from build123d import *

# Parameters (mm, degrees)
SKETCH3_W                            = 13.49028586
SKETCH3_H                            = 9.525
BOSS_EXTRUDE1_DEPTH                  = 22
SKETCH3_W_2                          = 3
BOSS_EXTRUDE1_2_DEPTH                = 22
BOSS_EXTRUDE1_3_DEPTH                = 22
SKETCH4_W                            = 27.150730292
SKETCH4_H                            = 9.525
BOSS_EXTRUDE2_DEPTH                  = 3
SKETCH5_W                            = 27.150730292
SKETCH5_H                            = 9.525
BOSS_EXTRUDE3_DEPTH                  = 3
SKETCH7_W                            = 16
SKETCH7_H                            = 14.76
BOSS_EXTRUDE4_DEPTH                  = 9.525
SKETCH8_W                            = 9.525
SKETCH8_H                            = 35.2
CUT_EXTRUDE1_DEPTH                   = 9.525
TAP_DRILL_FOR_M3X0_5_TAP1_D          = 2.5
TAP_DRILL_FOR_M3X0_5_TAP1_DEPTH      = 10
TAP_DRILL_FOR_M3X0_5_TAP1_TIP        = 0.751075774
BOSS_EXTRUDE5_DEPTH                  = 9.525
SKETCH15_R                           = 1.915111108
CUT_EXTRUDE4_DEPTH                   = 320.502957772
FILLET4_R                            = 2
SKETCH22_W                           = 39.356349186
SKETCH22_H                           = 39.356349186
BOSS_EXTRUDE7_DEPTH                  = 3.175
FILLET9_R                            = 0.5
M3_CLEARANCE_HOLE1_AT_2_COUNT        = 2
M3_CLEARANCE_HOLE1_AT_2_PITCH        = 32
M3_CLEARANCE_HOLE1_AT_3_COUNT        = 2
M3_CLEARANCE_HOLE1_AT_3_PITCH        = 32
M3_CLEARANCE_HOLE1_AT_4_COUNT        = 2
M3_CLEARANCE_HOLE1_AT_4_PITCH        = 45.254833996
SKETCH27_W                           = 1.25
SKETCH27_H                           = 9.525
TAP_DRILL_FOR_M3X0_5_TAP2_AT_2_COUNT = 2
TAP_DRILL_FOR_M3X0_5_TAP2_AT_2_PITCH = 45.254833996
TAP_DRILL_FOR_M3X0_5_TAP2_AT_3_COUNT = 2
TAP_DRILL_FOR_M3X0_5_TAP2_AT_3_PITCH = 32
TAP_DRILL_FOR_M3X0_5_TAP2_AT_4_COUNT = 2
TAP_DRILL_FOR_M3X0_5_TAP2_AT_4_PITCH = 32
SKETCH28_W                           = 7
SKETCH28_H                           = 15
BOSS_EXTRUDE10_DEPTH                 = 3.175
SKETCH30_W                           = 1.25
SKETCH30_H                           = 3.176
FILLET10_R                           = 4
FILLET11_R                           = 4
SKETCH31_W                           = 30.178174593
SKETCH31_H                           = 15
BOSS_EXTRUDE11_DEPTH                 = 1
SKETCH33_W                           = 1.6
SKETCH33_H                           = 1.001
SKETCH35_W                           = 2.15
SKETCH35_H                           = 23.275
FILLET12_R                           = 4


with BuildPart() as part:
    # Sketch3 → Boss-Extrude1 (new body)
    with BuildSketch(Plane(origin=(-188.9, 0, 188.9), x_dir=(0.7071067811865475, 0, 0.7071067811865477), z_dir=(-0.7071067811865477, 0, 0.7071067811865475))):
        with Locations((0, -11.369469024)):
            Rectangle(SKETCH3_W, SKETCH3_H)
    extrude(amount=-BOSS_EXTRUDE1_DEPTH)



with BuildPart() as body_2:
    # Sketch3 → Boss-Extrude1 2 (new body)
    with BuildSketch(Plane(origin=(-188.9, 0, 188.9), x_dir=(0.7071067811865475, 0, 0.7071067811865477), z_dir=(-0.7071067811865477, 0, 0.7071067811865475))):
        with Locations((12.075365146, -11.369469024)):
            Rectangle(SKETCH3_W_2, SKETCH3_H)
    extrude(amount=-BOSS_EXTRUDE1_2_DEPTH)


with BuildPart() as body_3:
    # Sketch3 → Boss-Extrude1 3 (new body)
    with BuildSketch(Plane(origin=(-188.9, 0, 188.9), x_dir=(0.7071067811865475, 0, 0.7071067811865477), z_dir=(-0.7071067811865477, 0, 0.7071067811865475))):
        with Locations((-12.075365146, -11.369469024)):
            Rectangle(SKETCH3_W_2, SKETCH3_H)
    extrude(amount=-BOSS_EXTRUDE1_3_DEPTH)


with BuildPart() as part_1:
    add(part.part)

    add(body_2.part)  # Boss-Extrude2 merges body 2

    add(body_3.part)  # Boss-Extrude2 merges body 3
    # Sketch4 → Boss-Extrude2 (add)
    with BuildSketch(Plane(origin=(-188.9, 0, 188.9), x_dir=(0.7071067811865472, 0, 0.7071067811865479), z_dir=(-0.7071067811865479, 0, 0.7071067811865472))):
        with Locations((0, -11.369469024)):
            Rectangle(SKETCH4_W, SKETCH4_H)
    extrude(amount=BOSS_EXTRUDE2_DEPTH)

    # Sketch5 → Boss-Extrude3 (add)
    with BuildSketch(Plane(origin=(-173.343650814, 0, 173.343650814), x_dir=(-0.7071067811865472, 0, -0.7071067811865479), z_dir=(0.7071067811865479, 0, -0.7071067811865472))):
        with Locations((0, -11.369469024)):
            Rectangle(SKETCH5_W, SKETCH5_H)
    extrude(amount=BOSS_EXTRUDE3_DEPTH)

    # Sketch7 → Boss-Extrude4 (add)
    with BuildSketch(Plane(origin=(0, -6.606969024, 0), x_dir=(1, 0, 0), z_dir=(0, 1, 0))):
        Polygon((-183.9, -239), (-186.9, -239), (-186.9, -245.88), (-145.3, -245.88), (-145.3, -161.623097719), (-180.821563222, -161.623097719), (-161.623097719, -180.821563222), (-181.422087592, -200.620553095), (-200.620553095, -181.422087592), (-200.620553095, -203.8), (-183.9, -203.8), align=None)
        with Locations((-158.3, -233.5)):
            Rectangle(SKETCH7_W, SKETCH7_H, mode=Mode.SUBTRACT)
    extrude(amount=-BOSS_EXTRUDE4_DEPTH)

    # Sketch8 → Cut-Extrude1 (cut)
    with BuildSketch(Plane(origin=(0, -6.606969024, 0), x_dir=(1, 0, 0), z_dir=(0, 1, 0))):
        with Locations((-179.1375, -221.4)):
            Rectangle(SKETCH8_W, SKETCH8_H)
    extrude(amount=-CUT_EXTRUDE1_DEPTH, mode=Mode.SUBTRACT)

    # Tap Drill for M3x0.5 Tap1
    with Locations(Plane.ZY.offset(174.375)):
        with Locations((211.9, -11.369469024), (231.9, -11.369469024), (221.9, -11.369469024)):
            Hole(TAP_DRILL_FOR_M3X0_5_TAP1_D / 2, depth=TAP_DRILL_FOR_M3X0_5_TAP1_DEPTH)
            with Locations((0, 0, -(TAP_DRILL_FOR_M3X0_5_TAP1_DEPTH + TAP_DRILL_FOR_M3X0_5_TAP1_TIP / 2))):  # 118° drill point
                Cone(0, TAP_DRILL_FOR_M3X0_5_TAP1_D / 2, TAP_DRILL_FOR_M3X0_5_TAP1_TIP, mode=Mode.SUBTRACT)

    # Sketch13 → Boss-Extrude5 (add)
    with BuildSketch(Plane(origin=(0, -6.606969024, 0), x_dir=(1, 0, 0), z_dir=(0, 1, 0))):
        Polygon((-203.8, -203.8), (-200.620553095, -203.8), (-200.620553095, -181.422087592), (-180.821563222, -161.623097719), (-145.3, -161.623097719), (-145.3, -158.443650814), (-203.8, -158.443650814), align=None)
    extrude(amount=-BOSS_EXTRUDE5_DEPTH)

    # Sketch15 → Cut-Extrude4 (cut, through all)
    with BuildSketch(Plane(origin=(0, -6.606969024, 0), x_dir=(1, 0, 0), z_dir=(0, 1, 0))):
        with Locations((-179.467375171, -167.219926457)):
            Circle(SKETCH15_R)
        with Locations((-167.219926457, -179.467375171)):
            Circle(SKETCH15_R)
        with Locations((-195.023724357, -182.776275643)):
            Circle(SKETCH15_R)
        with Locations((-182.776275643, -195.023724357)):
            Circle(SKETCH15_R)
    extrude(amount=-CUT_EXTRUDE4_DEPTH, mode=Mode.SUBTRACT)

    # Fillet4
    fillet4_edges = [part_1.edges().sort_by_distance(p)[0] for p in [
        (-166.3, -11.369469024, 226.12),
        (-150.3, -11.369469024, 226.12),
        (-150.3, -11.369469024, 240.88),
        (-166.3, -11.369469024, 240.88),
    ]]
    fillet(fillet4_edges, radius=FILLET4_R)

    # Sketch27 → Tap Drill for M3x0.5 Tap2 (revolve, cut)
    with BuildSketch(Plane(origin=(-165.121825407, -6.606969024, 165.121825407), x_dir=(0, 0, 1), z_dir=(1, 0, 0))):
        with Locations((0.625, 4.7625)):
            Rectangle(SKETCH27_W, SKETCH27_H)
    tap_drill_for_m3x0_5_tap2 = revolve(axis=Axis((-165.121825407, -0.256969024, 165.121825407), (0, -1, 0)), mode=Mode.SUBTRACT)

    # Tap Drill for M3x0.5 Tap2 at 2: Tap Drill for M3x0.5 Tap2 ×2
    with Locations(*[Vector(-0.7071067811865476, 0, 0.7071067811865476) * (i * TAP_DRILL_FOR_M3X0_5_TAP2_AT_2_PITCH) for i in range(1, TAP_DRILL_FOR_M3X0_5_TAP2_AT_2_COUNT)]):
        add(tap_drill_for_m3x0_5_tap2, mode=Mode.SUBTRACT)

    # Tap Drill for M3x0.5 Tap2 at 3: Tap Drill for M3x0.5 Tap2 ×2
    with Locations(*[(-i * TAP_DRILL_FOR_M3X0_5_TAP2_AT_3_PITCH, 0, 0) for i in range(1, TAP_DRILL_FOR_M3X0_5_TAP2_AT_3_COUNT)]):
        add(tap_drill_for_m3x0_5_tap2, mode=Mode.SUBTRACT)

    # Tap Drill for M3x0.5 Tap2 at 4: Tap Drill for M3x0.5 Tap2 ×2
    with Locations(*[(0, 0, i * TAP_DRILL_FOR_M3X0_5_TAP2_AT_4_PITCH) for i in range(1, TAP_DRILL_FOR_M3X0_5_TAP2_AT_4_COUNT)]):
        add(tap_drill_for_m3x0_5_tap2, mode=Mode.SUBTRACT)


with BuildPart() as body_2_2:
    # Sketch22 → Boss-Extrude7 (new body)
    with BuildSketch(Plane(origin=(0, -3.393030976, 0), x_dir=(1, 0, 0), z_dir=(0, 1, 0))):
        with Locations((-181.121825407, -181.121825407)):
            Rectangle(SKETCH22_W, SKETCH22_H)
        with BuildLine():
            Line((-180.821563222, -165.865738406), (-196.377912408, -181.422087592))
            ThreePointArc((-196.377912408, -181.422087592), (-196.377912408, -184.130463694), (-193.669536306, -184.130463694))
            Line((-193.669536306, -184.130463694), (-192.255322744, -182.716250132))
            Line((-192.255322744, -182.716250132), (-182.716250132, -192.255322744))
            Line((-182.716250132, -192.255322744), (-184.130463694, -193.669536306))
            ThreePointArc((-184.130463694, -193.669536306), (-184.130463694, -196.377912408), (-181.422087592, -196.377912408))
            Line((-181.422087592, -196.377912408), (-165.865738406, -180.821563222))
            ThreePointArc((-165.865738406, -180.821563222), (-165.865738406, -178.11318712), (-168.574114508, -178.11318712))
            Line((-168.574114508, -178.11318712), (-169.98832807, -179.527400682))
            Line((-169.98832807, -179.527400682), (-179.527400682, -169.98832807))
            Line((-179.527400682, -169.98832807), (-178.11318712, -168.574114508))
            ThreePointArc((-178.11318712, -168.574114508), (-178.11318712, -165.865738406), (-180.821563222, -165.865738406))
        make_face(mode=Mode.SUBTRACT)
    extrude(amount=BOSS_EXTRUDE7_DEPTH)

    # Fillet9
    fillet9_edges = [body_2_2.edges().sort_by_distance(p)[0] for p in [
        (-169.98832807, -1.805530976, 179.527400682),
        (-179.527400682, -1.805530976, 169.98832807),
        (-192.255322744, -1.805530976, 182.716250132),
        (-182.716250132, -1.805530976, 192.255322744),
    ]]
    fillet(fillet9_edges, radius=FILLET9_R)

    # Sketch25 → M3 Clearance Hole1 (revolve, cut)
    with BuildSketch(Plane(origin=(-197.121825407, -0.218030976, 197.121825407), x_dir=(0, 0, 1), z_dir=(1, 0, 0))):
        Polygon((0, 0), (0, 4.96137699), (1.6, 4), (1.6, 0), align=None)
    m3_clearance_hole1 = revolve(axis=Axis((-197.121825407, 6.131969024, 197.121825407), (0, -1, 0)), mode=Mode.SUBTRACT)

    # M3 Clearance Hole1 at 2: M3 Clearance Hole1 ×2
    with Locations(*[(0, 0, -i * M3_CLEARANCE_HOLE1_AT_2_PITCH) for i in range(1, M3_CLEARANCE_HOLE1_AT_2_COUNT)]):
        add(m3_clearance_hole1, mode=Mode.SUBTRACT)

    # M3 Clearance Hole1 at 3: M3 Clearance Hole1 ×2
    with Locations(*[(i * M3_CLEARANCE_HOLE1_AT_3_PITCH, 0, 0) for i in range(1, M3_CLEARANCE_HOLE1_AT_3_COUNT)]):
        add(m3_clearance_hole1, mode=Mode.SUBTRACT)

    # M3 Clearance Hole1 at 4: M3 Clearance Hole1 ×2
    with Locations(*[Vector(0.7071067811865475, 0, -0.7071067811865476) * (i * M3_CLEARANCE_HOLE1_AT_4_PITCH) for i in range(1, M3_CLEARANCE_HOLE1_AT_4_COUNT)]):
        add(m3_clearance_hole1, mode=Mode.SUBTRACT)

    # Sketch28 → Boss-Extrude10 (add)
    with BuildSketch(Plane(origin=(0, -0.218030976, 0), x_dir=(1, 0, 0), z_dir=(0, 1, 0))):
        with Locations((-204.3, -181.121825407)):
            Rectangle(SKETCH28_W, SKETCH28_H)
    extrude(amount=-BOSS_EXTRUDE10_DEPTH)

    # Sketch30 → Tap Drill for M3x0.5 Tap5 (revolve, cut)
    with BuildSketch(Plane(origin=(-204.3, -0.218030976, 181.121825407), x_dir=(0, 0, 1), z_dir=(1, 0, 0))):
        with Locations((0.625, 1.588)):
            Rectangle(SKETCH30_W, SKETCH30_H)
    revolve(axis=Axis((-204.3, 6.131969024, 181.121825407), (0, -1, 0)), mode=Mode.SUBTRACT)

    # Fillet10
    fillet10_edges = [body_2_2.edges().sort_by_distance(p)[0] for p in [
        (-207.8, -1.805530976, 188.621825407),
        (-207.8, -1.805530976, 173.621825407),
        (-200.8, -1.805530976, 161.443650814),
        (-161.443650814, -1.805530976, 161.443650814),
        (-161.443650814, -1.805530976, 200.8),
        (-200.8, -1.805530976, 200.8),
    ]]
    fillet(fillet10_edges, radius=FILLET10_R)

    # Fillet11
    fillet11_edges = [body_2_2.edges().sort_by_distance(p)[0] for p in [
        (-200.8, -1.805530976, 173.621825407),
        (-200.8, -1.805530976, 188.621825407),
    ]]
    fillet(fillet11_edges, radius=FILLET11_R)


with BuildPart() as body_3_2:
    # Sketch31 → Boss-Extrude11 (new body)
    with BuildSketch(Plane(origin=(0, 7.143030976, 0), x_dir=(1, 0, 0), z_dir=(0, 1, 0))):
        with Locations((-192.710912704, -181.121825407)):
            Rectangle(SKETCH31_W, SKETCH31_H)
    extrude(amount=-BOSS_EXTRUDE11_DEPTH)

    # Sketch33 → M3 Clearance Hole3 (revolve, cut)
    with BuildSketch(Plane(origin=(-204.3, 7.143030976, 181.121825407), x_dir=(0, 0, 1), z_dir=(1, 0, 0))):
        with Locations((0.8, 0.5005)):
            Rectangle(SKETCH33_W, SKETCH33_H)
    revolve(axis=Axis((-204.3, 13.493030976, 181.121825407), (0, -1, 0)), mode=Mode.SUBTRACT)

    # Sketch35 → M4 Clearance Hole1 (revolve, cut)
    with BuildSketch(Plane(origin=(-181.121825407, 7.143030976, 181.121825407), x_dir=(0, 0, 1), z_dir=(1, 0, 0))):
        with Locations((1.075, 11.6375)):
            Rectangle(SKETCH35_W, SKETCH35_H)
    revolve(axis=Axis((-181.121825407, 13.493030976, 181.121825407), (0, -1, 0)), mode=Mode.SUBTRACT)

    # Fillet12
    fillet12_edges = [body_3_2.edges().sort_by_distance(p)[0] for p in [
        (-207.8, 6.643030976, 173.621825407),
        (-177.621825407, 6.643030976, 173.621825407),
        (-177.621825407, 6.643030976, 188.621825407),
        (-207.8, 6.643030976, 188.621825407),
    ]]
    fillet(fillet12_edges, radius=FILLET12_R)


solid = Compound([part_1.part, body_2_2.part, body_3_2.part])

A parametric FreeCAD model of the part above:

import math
import FreeCAD as App
import Part
import Sketcher

V = App.Vector
Q = App.Units.Quantity


def edges_at(feature, points):
    """Names of the edges that pass closest to the given points."""
    edges = feature.Shape.Edges
    near = lambda p: min(range(len(edges)), key=lambda i: edges[i].distToShape(Part.Vertex(*p))[0])
    return sorted({f"Edge{near(p) + 1}" for p in points})


def add_polygon(sketch, points):
    """Adds a closed chain of lines whose ends are joined by coincident constraints."""
    first, n = sketch.GeometryCount, len(points)
    for a, b in zip(points, points[1:] + points[:1]):
        sketch.addGeometry(Part.LineSegment(App.Vector(*a, 0), App.Vector(*b, 0)), False)
    for i in range(n):
        sketch.addConstraint(Sketcher.Constraint("Coincident", first + i, 2, first + (i + 1) % n, 1))

doc = App.newDocument("Part")
body = doc.addObject("PartDesign::Body", "Body")

sketch1 = body.newObject("Sketcher::SketchObject", "Sketch")
sketch1.Placement = App.Placement(V(-188.9, 0, 188.9), App.Rotation(V(0.707106781, 0, 0.707106781), V(0, 0.999999999, 0), V(-0.707106781, 0, 0.707106781), "ZXY"))
add_polygon(sketch1, [(-7, -7), (-7, -16), (7, -16), (7, -7)])
sketch1.addConstraint([
    Sketcher.Constraint("Vertical", 0),
    Sketcher.Constraint("Horizontal", 1),
    Sketcher.Constraint("Vertical", 2),
    Sketcher.Constraint("Horizontal", 3),
    Sketcher.Constraint("DistanceY", 0, 2, 0, 1, 9.525),
    Sketcher.Constraint("DistanceX", 1, 1, 1, 2, 13.490286),
    Sketcher.Constraint("DistanceY", 0, 2, -1, 1, 16.131969),
    Sketcher.Constraint("DistanceX", 0, 2, -1, 1, 6.745143),
])
pad1 = body.newObject("PartDesign::Pad", "Pad")
pad1.Profile = sketch1
pad1.Length = 22
pad1.Reversed = True
body2 = doc.addObject("PartDesign::Body", "Body001")

sketch2 = body2.newObject("Sketcher::SketchObject", "Sketch001")
sketch2.Placement = App.Placement(V(-188.9, 0, 188.9), App.Rotation(V(0.707106781, 0, 0.707106781), V(0, 0.999999999, 0), V(-0.707106781, 0, 0.707106781), "ZXY"))
add_polygon(sketch2, [(10.6, -6.6), (10.6, -16.1), (13.6, -16.1), (13.6, -6.6)])
sketch2.addConstraint([
    Sketcher.Constraint("Vertical", 0),
    Sketcher.Constraint("Horizontal", 1),
    Sketcher.Constraint("Vertical", 2),
    Sketcher.Constraint("Horizontal", 3),
    Sketcher.Constraint("DistanceX", 1, 1, 1, 2, 3.0),
    Sketcher.Constraint("DistanceY", 0, 2, 0, 1, 9.525),
    Sketcher.Constraint("DistanceY", 0, 2, -1, 1, 16.131969),
    Sketcher.Constraint("DistanceX", -1, 1, 0, 2, 10.575365),
])
pad2 = body2.newObject("PartDesign::Pad", "Pad001")
pad2.Profile = sketch2
pad2.Length = 22
pad2.Reversed = True
body3 = doc.addObject("PartDesign::Body", "Body002")

sketch3 = body3.newObject("Sketcher::SketchObject", "Sketch002")
sketch3.Placement = App.Placement(V(-188.9, 0, 188.9), App.Rotation(V(0.707106781, 0, 0.707106781), V(0, 0.999999999, 0), V(-0.707106781, 0, 0.707106781), "ZXY"))
add_polygon(sketch3, [(-13.6, -6.6), (-13.6, -16.1), (-10.6, -16.1), (-10.6, -6.6)])
sketch3.addConstraint([
    Sketcher.Constraint("Vertical", 0),
    Sketcher.Constraint("Horizontal", 1),
    Sketcher.Constraint("Vertical", 2),
    Sketcher.Constraint("Horizontal", 3),
    Sketcher.Constraint("DistanceX", 1, 1, 1, 2, 3.0),
    Sketcher.Constraint("DistanceY", 0, 2, 0, 1, 9.525),
    Sketcher.Constraint("DistanceY", 0, 2, -1, 1, 16.131969),
    Sketcher.Constraint("DistanceX", 0, 2, -1, 1, 13.575365),
])
pad3 = body3.newObject("PartDesign::Pad", "Pad002")
pad3.Profile = sketch3
pad3.Length = 22
pad3.Reversed = True
body.AllowCompound = True
doc.recompute()

boolean = body.newObject("PartDesign::Boolean", "Boolean")
boolean.Type = "Fuse"
boolean.addObjects([body2])
doc.recompute()

boolean2 = body.newObject("PartDesign::Boolean", "Boolean001")
boolean2.Type = "Fuse"
boolean2.addObjects([body3])

sketch4 = body.newObject("Sketcher::SketchObject", "Sketch003")
sketch4.Placement = App.Placement(V(-188.9, 0, 188.9), App.Rotation(V(0.707106781, 0, 0.707106781), V(0, 0.999999999, 0), V(-0.707106781, 0, 0.707106781), "ZXY"))
add_polygon(sketch4, [(-14, -7), (-14, -16), (14, -16), (14, -7)])
sketch4.addConstraint([
    Sketcher.Constraint("Vertical", 0),
    Sketcher.Constraint("Horizontal", 1),
    Sketcher.Constraint("Vertical", 2),
    Sketcher.Constraint("Horizontal", 3),
    Sketcher.Constraint("DistanceY", 0, 2, 0, 1, 9.525),
    Sketcher.Constraint("DistanceX", 1, 1, 1, 2, 27.15073),
    Sketcher.Constraint("DistanceY", 0, 2, -1, 1, 16.131969),
    Sketcher.Constraint("DistanceX", 0, 2, -1, 1, 13.575365),
])
pad4 = body.newObject("PartDesign::Pad", "Pad003")
pad4.Profile = sketch4
pad4.Length = 3

sketch5 = body.newObject("Sketcher::SketchObject", "Sketch004")
sketch5.Placement = App.Placement(V(-173.343651, 0, 173.343651), App.Rotation(V(-0.707106781, 0, -0.707106781), V(0, 0.999999999, 0), V(0.707106781, 0, -0.707106781), "ZXY"))
add_polygon(sketch5, [(-14, -7), (-14, -16), (14, -16), (14, -7)])
sketch5.addConstraint([
    Sketcher.Constraint("Vertical", 0),
    Sketcher.Constraint("Horizontal", 1),
    Sketcher.Constraint("Vertical", 2),
    Sketcher.Constraint("Horizontal", 3),
    Sketcher.Constraint("DistanceY", 0, 2, 0, 1, 9.525),
    Sketcher.Constraint("DistanceX", 1, 1, 1, 2, 27.15073),
    Sketcher.Constraint("DistanceY", 0, 2, -1, 1, 16.131969),
    Sketcher.Constraint("DistanceX", 0, 2, -1, 1, 13.575365),
])
pad5 = body.newObject("PartDesign::Pad", "Pad004")
pad5.Profile = sketch5
pad5.Length = 3

sketch6 = body.newObject("Sketcher::SketchObject", "Sketch005")
sketch6.AttachmentSupport = (doc.getObject("XZ_Plane"), [""])
sketch6.MapMode = "FlatFace"
sketch6.AttachmentOffset = App.Placement(V(0, 0, 6.606969), App.Rotation())
add_polygon(sketch6, [(-183.9, 239), (-186.9, 239), (-186.9, 245.9), (-145.3, 245.9), (-145.3, 161.6), (-180.8, 161.6), (-161.6, 180.8), (-181.4, 200.6), (-200.6, 181.4), (-200.6, 203.8), (-183.9, 203.8)])
add_polygon(sketch6, [(-150.3, 240.9), (-166.3, 240.9), (-166.3, 226.1), (-150.3, 226.1)])
sketch6.addConstraint([
    Sketcher.Constraint("Horizontal", 0),
    Sketcher.Constraint("Vertical", 1),
    Sketcher.Constraint("Horizontal", 2),
    Sketcher.Constraint("Vertical", 3),
    Sketcher.Constraint("Horizontal", 4),
    Sketcher.Constraint("Vertical", 8),
    Sketcher.Constraint("Horizontal", 9),
    Sketcher.Constraint("Vertical", 10),
    Sketcher.Constraint("Horizontal", 11),
    Sketcher.Constraint("Vertical", 12),
    Sketcher.Constraint("Horizontal", 13),
    Sketcher.Constraint("Vertical", 14),
    Sketcher.Constraint("Perpendicular", 5, 6),
    Sketcher.Constraint("Perpendicular", 6, 7),
    Sketcher.Constraint("Equal", 5, 7),
    Sketcher.Constraint("DistanceX", 0, 2, 0, 1, 3.0),
    Sketcher.Constraint("DistanceX", 11, 2, 11, 1, 16.0),
    Sketcher.Constraint("Angle", 5, Q("45 deg")),
    Sketcher.Constraint("Distance", 6, 28.0),
    Sketcher.Constraint("DistanceX", 2, 1, 2, 2, 41.6),
    Sketcher.Constraint("DistanceY", 10, 1, 10, 2, 35.2),
    Sketcher.Constraint("DistanceY", -1, 1, 0, 2, 239.0),
    Sketcher.Constraint("DistanceY", 11, 2, 1, 2, 5.0),
    Sketcher.Constraint("DistanceX", 11, 2, 2, 2, 21.0),
    Sketcher.Constraint("DistanceY", 1, 1, 1, 2, 6.88),
    Sketcher.Constraint("DistanceY", 12, 2, 12, 1, 14.76),
    Sketcher.Constraint("DistanceX", 0, 2, -1, 1, 186.9),
    Sketcher.Constraint("Distance", 5, 27.15073),
    Sketcher.Constraint("DistanceX", 4, 2, 4, 1, 35.521563),
    Sketcher.Constraint("DistanceY", 3, 2, 3, 1, 84.256902),
])
pad6 = body.newObject("PartDesign::Pad", "Pad005")
pad6.Profile = sketch6
pad6.Length = 9.525

sketch7 = body.newObject("Sketcher::SketchObject", "Sketch006")
sketch7.AttachmentSupport = (doc.getObject("XZ_Plane"), [""])
sketch7.MapMode = "FlatFace"
sketch7.AttachmentOffset = App.Placement(V(0, 0, 6.606969), App.Rotation())
add_polygon(sketch7, [(-184, 204), (-184, 239), (-174, 239), (-174, 204)])
sketch7.addConstraint([
    Sketcher.Constraint("Vertical", 0),
    Sketcher.Constraint("Horizontal", 1),
    Sketcher.Constraint("Vertical", 2),
    Sketcher.Constraint("Horizontal", 3),
    Sketcher.Constraint("DistanceY", 0, 1, 0, 2, 35.2),
    Sketcher.Constraint("DistanceY", -1, 1, 0, 2, 239.0),
    Sketcher.Constraint("DistanceX", 0, 2, -1, 1, 183.9),
    Sketcher.Constraint("DistanceX", 1, 1, 1, 2, 9.525),
])
pocket1 = body.newObject("PartDesign::Pocket", "Pocket")
pocket1.Profile = sketch7
pocket1.Length = 9.525
pocket1.Reversed = True

sketch8 = body.newObject("Sketcher::SketchObject", "Sketch007")
sketch8.AttachmentSupport = (doc.getObject("YZ_Plane"), [""])
sketch8.MapMode = "FlatFace"
sketch8.AttachmentOffset = App.Placement(V(0, 0, -174.375), App.Rotation())
sketch8.addGeometry([
    Part.Circle(V(-11.4, 211.9, 0), V(0, 0, 1), 1.2),
    Part.Circle(V(-11.4, 231.9, 0), V(0, 0, 1), 1.2),
    Part.Circle(V(-11.4, 221.9, 0), V(0, 0, 1), 1.2),
], False)
sketch8.addConstraint([
    Sketcher.Constraint("Equal", 0, 1),
    Sketcher.Constraint("Equal", 1, 2),
    Sketcher.Constraint("Vertical", 0, 3, 1, 3),
    Sketcher.Constraint("Vertical", 1, 3, 2, 3),
    Sketcher.Constraint("Diameter", 0, 2.5),
    Sketcher.Constraint("DistanceY", 0, 3, 1, 3, 20.0),
    Sketcher.Constraint("DistanceY", 0, 3, 2, 3, 10.0),
    Sketcher.Constraint("DistanceY", -1, 1, 0, 3, 211.9),
    Sketcher.Constraint("DistanceX", 0, 3, -1, 1, 11.369469),
])
doc.recompute()
hole = body.newObject("PartDesign::Hole", "Hole")
hole.Profile = sketch8
hole.ThreadType = "None"
hole.Diameter = 2.5
hole.DepthType = "Dimension"
hole.Depth = 10
hole.DrillPoint = "Angled"
hole.DrillPointAngle = 118
hole.Reversed = True

sketch9 = body.newObject("Sketcher::SketchObject", "Sketch008")
sketch9.AttachmentSupport = (doc.getObject("XZ_Plane"), [""])
sketch9.MapMode = "FlatFace"
sketch9.AttachmentOffset = App.Placement(V(0, 0, 6.606969), App.Rotation())
add_polygon(sketch9, [(-203.8, 203.8), (-200.6, 203.8), (-200.6, 181.4), (-180.8, 161.6), (-145.3, 161.6), (-145.3, 158.4), (-203.8, 158.4)])
sketch9.addConstraint([
    Sketcher.Constraint("Horizontal", 0),
    Sketcher.Constraint("Vertical", 1),
    Sketcher.Constraint("Horizontal", 3),
    Sketcher.Constraint("Vertical", 4),
    Sketcher.Constraint("Horizontal", 5),
    Sketcher.Constraint("Vertical", 6),
    Sketcher.Constraint("Equal", 0, 4),
    Sketcher.Constraint("Angle", 2, Q("-45 deg")),
    Sketcher.Constraint("Distance", 2, 28.0),
    Sketcher.Constraint("DistanceX", 5, 2, 5, 1, 58.5),
    Sketcher.Constraint("DistanceY", -1, 1, 0, 2, 203.8),
    Sketcher.Constraint("DistanceX", 3, 2, -1, 1, 145.3),
    Sketcher.Constraint("DistanceY", 6, 1, 6, 2, 45.356349),
    Sketcher.Constraint("DistanceX", 0, 1, 0, 2, 3.179447),
])
pad7 = body.newObject("PartDesign::Pad", "Pad006")
pad7.Profile = sketch9
pad7.Length = 9.525

sketch10 = body.newObject("Sketcher::SketchObject", "Sketch009")
sketch10.AttachmentSupport = (doc.getObject("XZ_Plane"), [""])
sketch10.MapMode = "FlatFace"
sketch10.AttachmentOffset = App.Placement(V(0, 0, 6.606969), App.Rotation())
sketch10.addGeometry([
    Part.Circle(V(-179.5, 167.2, 0), V(0, 0, 1), 1.9),
    Part.Circle(V(-167.2, 179.5, 0), V(0, 0, 1), 1.9),
    Part.Circle(V(-195, 182.8, 0), V(0, 0, 1), 1.9),
    Part.Circle(V(-182.8, 195, 0), V(0, 0, 1), 1.9),
], False)
sketch10.addConstraint([
    Sketcher.Constraint("Equal", 0, 1),
    Sketcher.Constraint("Equal", 1, 2),
    Sketcher.Constraint("Equal", 2, 3),
    Sketcher.Constraint("Diameter", 0, 3.830222),
    Sketcher.Constraint("DistanceY", 1, 3, 2, 3, 3.3089),
    Sketcher.Constraint("DistanceX", 3, 3, 0, 3, 3.3089),
    Sketcher.Constraint("DistanceX", 0, 3, 1, 3, 12.247449),
    Sketcher.Constraint("DistanceY", 0, 3, 1, 3, 12.247449),
    Sketcher.Constraint("DistanceX", 2, 3, 0, 3, 15.556349),
    Sketcher.Constraint("DistanceY", 2, 3, 3, 3, 12.247449),
    Sketcher.Constraint("DistanceX", 0, 3, -1, 1, 179.467375),
    Sketcher.Constraint("DistanceY", -1, 1, 0, 3, 167.219926),
])
pocket2 = body.newObject("PartDesign::Pocket", "Pocket001")
pocket2.Profile = sketch10
pocket2.Type = "ThroughAll"
pocket2.Reversed = True
doc.recompute()

fillet = body.newObject("PartDesign::Fillet", "Fillet")
fillet.Base = (pocket2, edges_at(pocket2, [
    (-166.3, -11.369, 226.12),
    (-150.3, -11.369, 226.12),
    (-150.3, -11.369, 240.88),
    (-166.3, -11.369, 240.88),
]))
fillet.Radius = 2

sketch11 = body.newObject("Sketcher::SketchObject", "Sketch010")
sketch11.AttachmentSupport = (doc.getObject("YZ_Plane"), [""])
sketch11.MapMode = "FlatFace"
sketch11.AttachmentOffset = App.Placement(V(0, 0, -165.121825), App.Rotation())
add_polygon(sketch11, [(-16.1, 165.1), (-6.6, 165.1), (-6.6, 166.4), (-16.1, 166.4)])
sketch11.addGeometry(Part.LineSegment(V(-6.6, 165.1, 0), V(-16.1, 165.1, 0)), True)
sketch11.addConstraint([
    Sketcher.Constraint("Horizontal", 0),
    Sketcher.Constraint("Vertical", 1),
    Sketcher.Constraint("Horizontal", 2),
    Sketcher.Constraint("Vertical", 3),
    Sketcher.Constraint("Horizontal", 4),
    Sketcher.Constraint("Coincident", 4, 1, 0, 2),
    Sketcher.Constraint("Vertical", 2, 2, 4, 2),
    Sketcher.Constraint("DistanceY", 1, 1, 1, 2, 1.25),
    Sketcher.Constraint("DistanceX", 0, 1, 0, 2, 9.525),
    Sketcher.Constraint("DistanceX", 0, 2, -1, 1, 6.606969),
    Sketcher.Constraint("DistanceY", -1, 1, 0, 2, 165.121825),
])
groove = body.newObject("PartDesign::Groove", "Groove")
groove.Profile = sketch11
groove.ReferenceAxis = (sketch11, ["Axis0"])
groove.Angle = 360
doc.recompute()

datumline = body.newObject("PartDesign::Line", "DatumLine")
datumline.Placement = App.Placement(V(0, 0, 0), App.Rotation(V(0, 0, 1), V(-0.707106781, 0, 0.707106781)))
linearpattern = body.newObject("PartDesign::LinearPattern", "LinearPattern")
linearpattern.Originals = [groove]
linearpattern.Direction = (datumline, [""])
linearpattern.Mode = "offset"
linearpattern.Offset = 45.254834
linearpattern.Occurrences = 2
body.Tip = linearpattern
doc.recompute()

linearpattern2 = body.newObject("PartDesign::LinearPattern", "LinearPattern001")
linearpattern2.Originals = [groove]
linearpattern2.Direction = (doc.getObject("X_Axis"), [""])
linearpattern2.Mode = "offset"
linearpattern2.Offset = 32
linearpattern2.Occurrences = 2
linearpattern2.Reversed = True
body.Tip = linearpattern2
doc.recompute()

linearpattern3 = body.newObject("PartDesign::LinearPattern", "LinearPattern002")
linearpattern3.Originals = [groove]
linearpattern3.Direction = (doc.getObject("Z_Axis"), [""])
linearpattern3.Mode = "offset"
linearpattern3.Offset = 32
linearpattern3.Occurrences = 2
body.Tip = linearpattern3
body4 = doc.addObject("PartDesign::Body", "Body003")

sketch12 = body4.newObject("Sketcher::SketchObject", "Sketch011")
sketch12.AttachmentSupport = (doc.getObject("XZ_Plane003"), [""])
sketch12.MapMode = "FlatFace"
sketch12.AttachmentOffset = App.Placement(V(0, 0, 3.393031), App.Rotation())
add_polygon(sketch12, [(-200.8, 161.4), (-200.8, 200.8), (-161.4, 200.8), (-161.4, 161.4)])
sketch12.addGeometry(Part.LineSegment(V(-196.4, 181.4, 0), V(-180.8, 165.9, 0)), False)
sketch12.addGeometry(Part.ArcOfCircle(Part.Circle(V(-179.5, 167.2, 0), V(0, 0, 1), 1.9), math.radians(-135), math.radians(45)), False)
sketch12.addGeometry(Part.LineSegment(V(-178.1, 168.6, 0), V(-179.5, 170, 0)), False)
sketch12.addGeometry(Part.LineSegment(V(-179.5, 170, 0), V(-170, 179.5, 0)), False)
sketch12.addGeometry(Part.LineSegment(V(-170, 179.5, 0), V(-168.6, 178.1, 0)), False)
sketch12.addGeometry(Part.ArcOfCircle(Part.Circle(V(-167.2, 179.5, 0), V(0, 0, 1), 1.9), math.radians(-135), math.radians(45)), False)
sketch12.addGeometry(Part.LineSegment(V(-165.9, 180.8, 0), V(-181.4, 196.4, 0)), False)
sketch12.addGeometry(Part.ArcOfCircle(Part.Circle(V(-182.8, 195, 0), V(0, 0, 1), 1.9), math.radians(45), math.radians(225)), False)
sketch12.addGeometry(Part.LineSegment(V(-184.1, 193.7, 0), V(-182.7, 192.3, 0)), False)
sketch12.addGeometry(Part.LineSegment(V(-182.7, 192.3, 0), V(-192.3, 182.7, 0)), False)
sketch12.addGeometry(Part.LineSegment(V(-192.3, 182.7, 0), V(-193.7, 184.1, 0)), False)
sketch12.addGeometry(Part.ArcOfCircle(Part.Circle(V(-195, 182.8, 0), V(0, 0, 1), 1.9), math.radians(45), math.radians(225)), False)
sketch12.addConstraint([
    Sketcher.Constraint("Tangent", 4, 2, 5, 1),
    Sketcher.Constraint("Tangent", 5, 2, 6, 1),
    Sketcher.Constraint("Coincident", 6, 2, 7, 1),
    Sketcher.Constraint("Coincident", 7, 2, 8, 1),
    Sketcher.Constraint("Tangent", 8, 2, 9, 1),
    Sketcher.Constraint("Tangent", 9, 2, 10, 1),
    Sketcher.Constraint("Tangent", 10, 2, 11, 1),
    Sketcher.Constraint("Tangent", 11, 2, 12, 1),
    Sketcher.Constraint("Coincident", 12, 2, 13, 1),
    Sketcher.Constraint("Coincident", 13, 2, 14, 1),
    Sketcher.Constraint("Tangent", 14, 2, 15, 1),
    Sketcher.Constraint("Tangent", 15, 2, 4, 1),
    Sketcher.Constraint("Vertical", 0),
    Sketcher.Constraint("Horizontal", 1),
    Sketcher.Constraint("Vertical", 2),
    Sketcher.Constraint("Horizontal", 3),
    Sketcher.Constraint("Equal", 5, 9),
    Sketcher.Constraint("Equal", 9, 11),
    Sketcher.Constraint("Equal", 11, 15),
    Sketcher.Constraint("Parallel", 4, 6),
    Sketcher.Constraint("Perpendicular", 6, 7),
    Sketcher.Constraint("Perpendicular", 7, 8),
    Sketcher.Constraint("Parallel", 8, 10),
    Sketcher.Constraint("Parallel", 10, 12),
    Sketcher.Constraint("Perpendicular", 12, 13),
    Sketcher.Constraint("Perpendicular", 13, 14),
    Sketcher.Constraint("Equal", 3, 0),
    Sketcher.Constraint("Equal", 6, 8),
    Sketcher.Constraint("Equal", 4, 10),
    Sketcher.Constraint("Equal", 8, 12),
    Sketcher.Constraint("Angle", 4, Q("-45 deg")),
    Sketcher.Constraint("Distance", 4, 22.0),
    Sketcher.Constraint("Distance", 6, 2.0),
    Sketcher.Constraint("DistanceX", 0, 2, -1, 1, 200.8),
    Sketcher.Constraint("DistanceY", -1, 1, 0, 2, 200.8),
    Sketcher.Constraint("Radius", 5, 1.915111),
    Sketcher.Constraint("DistanceX", 1, 1, 1, 2, 39.356349),
    Sketcher.Constraint("DistanceX", 6, 2, -1, 1, 179.527401),
    Sketcher.Constraint("DistanceY", -1, 1, 7, 2, 179.527401),
    Sketcher.Constraint("DistanceX", 11, 3, 5, 3, 3.3089),
])
pad8 = body4.newObject("PartDesign::Pad", "Pad007")
pad8.Profile = sketch12
pad8.Length = 3.175
pad8.Reversed = True
doc.recompute()

fillet2 = body4.newObject("PartDesign::Fillet", "Fillet001")
fillet2.Base = (pad8, edges_at(pad8, [
    (-169.988, -1.806, 179.527),
    (-179.527, -1.806, 169.988),
    (-192.255, -1.806, 182.716),
    (-182.716, -1.806, 192.255),
]))
fillet2.Radius = 0.5

sketch13 = body4.newObject("Sketcher::SketchObject", "Sketch012")
sketch13.AttachmentSupport = (doc.getObject("YZ_Plane003"), [""])
sketch13.MapMode = "FlatFace"
sketch13.AttachmentOffset = App.Placement(V(0, 0, -197.121825), App.Rotation())
add_polygon(sketch13, [(-5.2, 197.1), (-0.2, 197.1), (-0.2, 198.7), (-4.2, 198.7)])
sketch13.addGeometry(Part.LineSegment(V(-0.2, 197.1, 0), V(-5.2, 197.1, 0)), True)
sketch13.addConstraint([
    Sketcher.Constraint("Horizontal", 0),
    Sketcher.Constraint("Vertical", 1),
    Sketcher.Constraint("Horizontal", 2),
    Sketcher.Constraint("Horizontal", 4),
    Sketcher.Constraint("Coincident", 4, 1, 0, 2),
    Sketcher.Constraint("Equal", 0, 4),
    Sketcher.Constraint("DistanceX", 2, 2, 2, 1, 4.0),
    Sketcher.Constraint("Angle", 3, Q("-121 deg")),
    Sketcher.Constraint("DistanceY", 1, 1, 1, 2, 1.6),
    Sketcher.Constraint("DistanceX", 0, 2, -1, 1, 0.218031),
    Sketcher.Constraint("DistanceY", -1, 1, 0, 2, 197.121825),
])
groove2 = body4.newObject("PartDesign::Groove", "Groove001")
groove2.Profile = sketch13
groove2.ReferenceAxis = (sketch13, ["Axis0"])
groove2.Angle = 360
doc.recompute()

linearpattern4 = body4.newObject("PartDesign::LinearPattern", "LinearPattern003")
linearpattern4.Originals = [groove2]
linearpattern4.Direction = (doc.getObject("Z_Axis003"), [""])
linearpattern4.Mode = "offset"
linearpattern4.Offset = 32
linearpattern4.Occurrences = 2
linearpattern4.Reversed = True
body4.Tip = linearpattern4
doc.recompute()

linearpattern5 = body4.newObject("PartDesign::LinearPattern", "LinearPattern004")
linearpattern5.Originals = [groove2]
linearpattern5.Direction = (doc.getObject("X_Axis003"), [""])
linearpattern5.Mode = "offset"
linearpattern5.Offset = 32
linearpattern5.Occurrences = 2
body4.Tip = linearpattern5
doc.recompute()

datumline2 = body4.newObject("PartDesign::Line", "DatumLine001")
datumline2.Placement = App.Placement(V(0, 0, 0), App.Rotation(V(0, 0, 1), V(0.707106781, 0, -0.707106781)))
linearpattern6 = body4.newObject("PartDesign::LinearPattern", "LinearPattern005")
linearpattern6.Originals = [groove2]
linearpattern6.Direction = (datumline2, [""])
linearpattern6.Mode = "offset"
linearpattern6.Offset = 45.254834
linearpattern6.Occurrences = 2
body4.Tip = linearpattern6

sketch14 = body4.newObject("Sketcher::SketchObject", "Sketch013")
sketch14.AttachmentSupport = (doc.getObject("XZ_Plane003"), [""])
sketch14.MapMode = "FlatFace"
sketch14.AttachmentOffset = App.Placement(V(0, 0, 0.218031), App.Rotation())
add_polygon(sketch14, [(-208, 174), (-208, 189), (-201, 189), (-201, 174)])
sketch14.addConstraint([
    Sketcher.Constraint("Vertical", 0),
    Sketcher.Constraint("Horizontal", 1),
    Sketcher.Constraint("Vertical", 2),
    Sketcher.Constraint("Horizontal", 3),
    Sketcher.Constraint("DistanceX", 1, 1, 1, 2, 7.0),
    Sketcher.Constraint("DistanceY", 0, 1, 0, 2, 15.0),
    Sketcher.Constraint("DistanceX", 0, 2, -1, 1, 207.8),
    Sketcher.Constraint("DistanceY", -1, 1, 0, 2, 188.621825),
])
pad9 = body4.newObject("PartDesign::Pad", "Pad008")
pad9.Profile = sketch14
pad9.Length = 3.175

sketch15 = body4.newObject("Sketcher::SketchObject", "Sketch014")
sketch15.AttachmentSupport = (doc.getObject("YZ_Plane003"), [""])
sketch15.MapMode = "FlatFace"
sketch15.AttachmentOffset = App.Placement(V(0, 0, -204.3), App.Rotation())
add_polygon(sketch15, [(-3.4, 181.1), (-0.2, 181.1), (-0.2, 182.4), (-3.4, 182.4)])
sketch15.addGeometry(Part.LineSegment(V(-0.2, 181.1, 0), V(-3.4, 181.1, 0)), True)
sketch15.addConstraint([
    Sketcher.Constraint("Horizontal", 0),
    Sketcher.Constraint("Vertical", 1),
    Sketcher.Constraint("Horizontal", 2),
    Sketcher.Constraint("Vertical", 3),
    Sketcher.Constraint("Horizontal", 4),
    Sketcher.Constraint("Coincident", 4, 1, 0, 2),
    Sketcher.Constraint("Vertical", 2, 2, 4, 2),
    Sketcher.Constraint("DistanceY", 1, 1, 1, 2, 1.25),
    Sketcher.Constraint("DistanceX", 0, 1, 0, 2, 3.176),
    Sketcher.Constraint("DistanceX", 0, 2, -1, 1, 0.218031),
    Sketcher.Constraint("DistanceY", -1, 1, 0, 2, 181.121825),
])
groove3 = body4.newObject("PartDesign::Groove", "Groove002")
groove3.Profile = sketch15
groove3.ReferenceAxis = (sketch15, ["Axis0"])
groove3.Angle = 360
doc.recompute()

fillet3 = body4.newObject("PartDesign::Fillet", "Fillet002")
fillet3.Base = (groove3, edges_at(groove3, [
    (-207.8, -1.806, 188.622),
    (-207.8, -1.806, 173.622),
    (-200.8, -1.806, 161.444),
    (-161.444, -1.806, 161.444),
    (-161.444, -1.806, 200.8),
    (-200.8, -1.806, 200.8),
]))
fillet3.Radius = 4
doc.recompute()

fillet4 = body4.newObject("PartDesign::Fillet", "Fillet003")
fillet4.Base = (fillet3, edges_at(fillet3, [(-200.8, -1.806, 173.622), (-200.8, -1.806, 188.622)]))
fillet4.Radius = 4
body5 = doc.addObject("PartDesign::Body", "Body004")

sketch16 = body5.newObject("Sketcher::SketchObject", "Sketch015")
sketch16.AttachmentSupport = (doc.getObject("XZ_Plane004"), [""])
sketch16.MapMode = "FlatFace"
sketch16.AttachmentOffset = App.Placement(V(0, 0, -7.143031), App.Rotation())
add_polygon(sketch16, [(-208, 174), (-208, 189), (-178, 189), (-178, 174)])
sketch16.addConstraint([
    Sketcher.Constraint("Vertical", 0),
    Sketcher.Constraint("Horizontal", 1),
    Sketcher.Constraint("Vertical", 2),
    Sketcher.Constraint("Horizontal", 3),
    Sketcher.Constraint("DistanceY", 0, 1, 0, 2, 15.0),
    Sketcher.Constraint("DistanceX", 0, 2, -1, 1, 207.8),
    Sketcher.Constraint("DistanceX", 1, 1, 1, 2, 30.178175),
    Sketcher.Constraint("DistanceY", -1, 1, 0, 2, 188.621825),
])
pad10 = body5.newObject("PartDesign::Pad", "Pad009")
pad10.Profile = sketch16
pad10.Length = 1

sketch17 = body5.newObject("Sketcher::SketchObject", "Sketch016")
sketch17.AttachmentSupport = (doc.getObject("YZ_Plane004"), [""])
sketch17.MapMode = "FlatFace"
sketch17.AttachmentOffset = App.Placement(V(0, 0, -204.3), App.Rotation())
add_polygon(sketch17, [(6.1, 181.1), (7.1, 181.1), (7.1, 182.7), (6.1, 182.7)])
sketch17.addGeometry(Part.LineSegment(V(7.1, 181.1, 0), V(6.1, 181.1, 0)), True)
sketch17.addConstraint([
    Sketcher.Constraint("Horizontal", 0),
    Sketcher.Constraint("Vertical", 1),
    Sketcher.Constraint("Horizontal", 2),
    Sketcher.Constraint("Vertical", 3),
    Sketcher.Constraint("Horizontal", 4),
    Sketcher.Constraint("Coincident", 4, 1, 0, 2),
    Sketcher.Constraint("Vertical", 2, 2, 4, 2),
    Sketcher.Constraint("DistanceY", 1, 1, 1, 2, 1.6),
    Sketcher.Constraint("DistanceX", 0, 1, 0, 2, 1.001),
    Sketcher.Constraint("DistanceX", -1, 1, 0, 2, 7.143031),
    Sketcher.Constraint("DistanceY", -1, 1, 0, 2, 181.121825),
])
groove4 = body5.newObject("PartDesign::Groove", "Groove003")
groove4.Profile = sketch17
groove4.ReferenceAxis = (sketch17, ["Axis0"])
groove4.Angle = 360

sketch18 = body5.newObject("Sketcher::SketchObject", "Sketch017")
sketch18.AttachmentSupport = (doc.getObject("YZ_Plane004"), [""])
sketch18.MapMode = "FlatFace"
sketch18.AttachmentOffset = App.Placement(V(0, 0, -181.121825), App.Rotation())
add_polygon(sketch18, [(-16.1, 181.1), (7.1, 181.1), (7.1, 183.3), (-16.1, 183.3)])
sketch18.addGeometry(Part.LineSegment(V(7.1, 181.1, 0), V(-16.1, 181.1, 0)), True)
sketch18.addConstraint([
    Sketcher.Constraint("Horizontal", 0),
    Sketcher.Constraint("Vertical", 1),
    Sketcher.Constraint("Horizontal", 2),
    Sketcher.Constraint("Vertical", 3),
    Sketcher.Constraint("Horizontal", 4),
    Sketcher.Constraint("Coincident", 4, 1, 0, 2),
    Sketcher.Constraint("Vertical", 2, 2, 4, 2),
    Sketcher.Constraint("DistanceY", 1, 1, 1, 2, 2.15),
    Sketcher.Constraint("DistanceX", 0, 1, 0, 2, 23.275),
    Sketcher.Constraint("DistanceX", -1, 1, 0, 2, 7.143031),
    Sketcher.Constraint("DistanceY", -1, 1, 0, 2, 181.121825),
])
groove5 = body5.newObject("PartDesign::Groove", "Groove004")
groove5.Profile = sketch18
groove5.ReferenceAxis = (sketch18, ["Axis0"])
groove5.Angle = 360
doc.recompute()

fillet5 = body5.newObject("PartDesign::Fillet", "Fillet004")
fillet5.Base = (groove5, edges_at(groove5, [
    (-207.8, 6.643, 173.622),
    (-177.622, 6.643, 173.622),
    (-177.622, 6.643, 188.622),
    (-207.8, 6.643, 188.622),
]))
fillet5.Radius = 4

doc.recompute()
